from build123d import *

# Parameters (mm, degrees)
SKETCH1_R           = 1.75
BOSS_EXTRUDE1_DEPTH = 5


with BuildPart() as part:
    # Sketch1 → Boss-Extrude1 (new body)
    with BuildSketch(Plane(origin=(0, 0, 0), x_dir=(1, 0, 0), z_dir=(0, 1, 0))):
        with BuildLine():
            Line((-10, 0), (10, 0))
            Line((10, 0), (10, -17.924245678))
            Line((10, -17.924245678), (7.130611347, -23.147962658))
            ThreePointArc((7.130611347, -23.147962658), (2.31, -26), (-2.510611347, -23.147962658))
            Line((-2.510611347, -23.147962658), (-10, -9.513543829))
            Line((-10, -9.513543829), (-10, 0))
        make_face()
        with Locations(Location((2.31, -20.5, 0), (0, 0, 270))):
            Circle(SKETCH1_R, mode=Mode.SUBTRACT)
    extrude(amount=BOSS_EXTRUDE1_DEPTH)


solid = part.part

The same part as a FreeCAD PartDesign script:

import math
import FreeCAD as App
import Part
import Sketcher

V = App.Vector
Q = App.Units.Quantity

doc = App.newDocument("Part")
body = doc.addObject("PartDesign::Body", "Body")

# Sketch on XZ plane
sketch1 = body.newObject("Sketcher::SketchObject", "Sketch")
sketch1.AttachmentSupport = (doc.getObject("XZ_Plane"), [""])
sketch1.MapMode = "FlatFace"
sketch1.addGeometry(Part.LineSegment(V(10, 0, 0), V(-10, 0, 0)), False)
sketch1.addGeometry(Part.LineSegment(V(-10, 0, 0), V(-10, 9.5, 0)), False)
sketch1.addGeometry(Part.LineSegment(V(-10, 9.5, 0), V(-2.5, 23.1, 0)), False)
sketch1.addGeometry(Part.ArcOfCircle(Part.Circle(V(2.3, 20.5, 0), V(0, 0, 1), 5.5), math.radians(29), math.radians(151)), False)
sketch1.addGeometry(Part.LineSegment(V(7.1, 23.1, 0), V(10, 17.9, 0)), False)
sketch1.addGeometry(Part.LineSegment(V(10, 17.9, 0), V(10, 0, 0)), False)
sketch1.addGeometry(Part.Circle(V(2.3, 20.5, 0), V(0, 0, 1), 1.8), False)
sketch1.addConstraint(Sketcher.Constraint("Coincident", 0, 2, 1, 1))
sketch1.addConstraint(Sketcher.Constraint("Coincident", 1, 2, 2, 1))
sketch1.addConstraint(Sketcher.Constraint("Tangent", 2, 2, 3, 2))
sketch1.addConstraint(Sketcher.Constraint("Tangent", 3, 1, 4, 1))
sketch1.addConstraint(Sketcher.Constraint("Coincident", 4, 2, 5, 1))
sketch1.addConstraint(Sketcher.Constraint("Coincident", 5, 2, 0, 1))
sketch1.addConstraint(Sketcher.Constraint("Horizontal", 0))
sketch1.addConstraint(Sketcher.Constraint("Vertical", 1))
sketch1.addConstraint(Sketcher.Constraint("Vertical", 5))
sketch1.addConstraint(Sketcher.Constraint("Coincident", 6, 3, 3, 3))
sketch1.addConstraint(Sketcher.Constraint("Symmetric", 0, 2, 5, 2, -1, 1))
sketch1.addConstraint(Sketcher.Constraint("Horizontal", 2, 2, 3, 1))
sketch1.addConstraint(Sketcher.Constraint("Diameter", 6, Q("3.5 mm")))
sketch1.addConstraint(Sketcher.Constraint("Radius", 3, Q("5.5 mm")))
sketch1.addConstraint(Sketcher.Constraint("DistanceX", 0, 2, 0, 1, Q("20 mm")))
sketch1.addConstraint(Sketcher.Constraint("DistanceY", -1, 1, 3, 3, Q("20.5 mm")))
sketch1.addConstraint(Sketcher.Constraint("Angle", 2, Q("61.22 deg")))
sketch1.addConstraint(Sketcher.Constraint("DistanceX", -1, 1, 3, 3, Q("2.31 mm")))
pad1 = body.newObject("PartDesign::Pad", "Pad")
pad1.Profile = sketch1
pad1.Length = 5
pad1.Reversed = True

doc.recompute()
